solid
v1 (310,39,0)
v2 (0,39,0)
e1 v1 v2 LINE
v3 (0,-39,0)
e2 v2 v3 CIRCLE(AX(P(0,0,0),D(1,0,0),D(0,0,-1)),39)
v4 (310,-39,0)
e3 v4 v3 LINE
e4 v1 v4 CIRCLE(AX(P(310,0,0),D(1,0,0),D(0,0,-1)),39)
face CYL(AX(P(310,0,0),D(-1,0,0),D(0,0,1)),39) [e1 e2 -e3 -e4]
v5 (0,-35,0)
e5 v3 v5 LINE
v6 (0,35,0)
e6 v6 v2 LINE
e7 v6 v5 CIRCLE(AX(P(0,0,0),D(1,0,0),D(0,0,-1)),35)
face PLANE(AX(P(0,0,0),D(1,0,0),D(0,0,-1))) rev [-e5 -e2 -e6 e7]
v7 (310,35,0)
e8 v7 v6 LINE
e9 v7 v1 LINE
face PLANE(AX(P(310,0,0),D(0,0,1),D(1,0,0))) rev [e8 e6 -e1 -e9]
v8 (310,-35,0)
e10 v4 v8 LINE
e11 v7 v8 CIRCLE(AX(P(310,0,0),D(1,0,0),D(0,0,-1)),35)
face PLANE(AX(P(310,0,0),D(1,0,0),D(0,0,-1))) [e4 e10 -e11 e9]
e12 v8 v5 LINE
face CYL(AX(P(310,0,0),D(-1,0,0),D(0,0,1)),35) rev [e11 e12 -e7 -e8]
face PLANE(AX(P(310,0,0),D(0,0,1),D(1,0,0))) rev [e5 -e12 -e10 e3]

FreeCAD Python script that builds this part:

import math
import FreeCAD as App
import Part
import Sketcher

V = App.Vector
Q = App.Units.Quantity

doc = App.newDocument("Part")
body = doc.addObject("PartDesign::Body", "Body")

# Sketch on YZ plane
sketch1 = doc.addObject("Sketcher::SketchObject", "Sketch")
body.addObject(sketch1)
sketch1.AttachmentSupport = (doc.YZ_Plane, [""])
sketch1.MapMode = "FlatFace"
sketch1.addGeometry([
    Part.ArcOfCircle(Part.Circle(V(0, 0, 0), V(0, 0, 1), 35), math.radians(0), math.radians(180)),
    Part.LineSegment(V(35, 0, 0), V(39, 0, 0)),
    Part.ArcOfCircle(Part.Circle(V(0, 0, 0), V(0, 0, 1), 39), math.radians(0), math.radians(180)),
    Part.LineSegment(V(-39, 0, 0), V(-35, 0, 0)),
], False)
sketch1.addConstraint([
    Sketcher.Constraint("Coincident", 0, 1, 1, 1),
    Sketcher.Constraint("Coincident", 1, 2, 2, 1),
    Sketcher.Constraint("Coincident", 2, 2, 3, 1),
    Sketcher.Constraint("Coincident", 3, 2, 0, 2),
    Sketcher.Constraint("Horizontal", 1),
    Sketcher.Constraint("Horizontal", 3),
    Sketcher.Constraint("Coincident", 0, 3, -1, 1),
    Sketcher.Constraint("Coincident", 2, 3, -1, 1),
    Sketcher.Constraint("PointOnObject", 0, 1, -1),
    Sketcher.Constraint("PointOnObject", 2, 2, -1),
    Sketcher.Constraint("Radius", 0, Q("35 mm")),
    Sketcher.Constraint("Radius", 2, Q("39 mm")),
])
pad1 = doc.addObject("PartDesign::Pad", "Pad")
body.addObject(pad1)
pad1.Profile = sketch1
pad1.Length = 310

doc.recompute()
